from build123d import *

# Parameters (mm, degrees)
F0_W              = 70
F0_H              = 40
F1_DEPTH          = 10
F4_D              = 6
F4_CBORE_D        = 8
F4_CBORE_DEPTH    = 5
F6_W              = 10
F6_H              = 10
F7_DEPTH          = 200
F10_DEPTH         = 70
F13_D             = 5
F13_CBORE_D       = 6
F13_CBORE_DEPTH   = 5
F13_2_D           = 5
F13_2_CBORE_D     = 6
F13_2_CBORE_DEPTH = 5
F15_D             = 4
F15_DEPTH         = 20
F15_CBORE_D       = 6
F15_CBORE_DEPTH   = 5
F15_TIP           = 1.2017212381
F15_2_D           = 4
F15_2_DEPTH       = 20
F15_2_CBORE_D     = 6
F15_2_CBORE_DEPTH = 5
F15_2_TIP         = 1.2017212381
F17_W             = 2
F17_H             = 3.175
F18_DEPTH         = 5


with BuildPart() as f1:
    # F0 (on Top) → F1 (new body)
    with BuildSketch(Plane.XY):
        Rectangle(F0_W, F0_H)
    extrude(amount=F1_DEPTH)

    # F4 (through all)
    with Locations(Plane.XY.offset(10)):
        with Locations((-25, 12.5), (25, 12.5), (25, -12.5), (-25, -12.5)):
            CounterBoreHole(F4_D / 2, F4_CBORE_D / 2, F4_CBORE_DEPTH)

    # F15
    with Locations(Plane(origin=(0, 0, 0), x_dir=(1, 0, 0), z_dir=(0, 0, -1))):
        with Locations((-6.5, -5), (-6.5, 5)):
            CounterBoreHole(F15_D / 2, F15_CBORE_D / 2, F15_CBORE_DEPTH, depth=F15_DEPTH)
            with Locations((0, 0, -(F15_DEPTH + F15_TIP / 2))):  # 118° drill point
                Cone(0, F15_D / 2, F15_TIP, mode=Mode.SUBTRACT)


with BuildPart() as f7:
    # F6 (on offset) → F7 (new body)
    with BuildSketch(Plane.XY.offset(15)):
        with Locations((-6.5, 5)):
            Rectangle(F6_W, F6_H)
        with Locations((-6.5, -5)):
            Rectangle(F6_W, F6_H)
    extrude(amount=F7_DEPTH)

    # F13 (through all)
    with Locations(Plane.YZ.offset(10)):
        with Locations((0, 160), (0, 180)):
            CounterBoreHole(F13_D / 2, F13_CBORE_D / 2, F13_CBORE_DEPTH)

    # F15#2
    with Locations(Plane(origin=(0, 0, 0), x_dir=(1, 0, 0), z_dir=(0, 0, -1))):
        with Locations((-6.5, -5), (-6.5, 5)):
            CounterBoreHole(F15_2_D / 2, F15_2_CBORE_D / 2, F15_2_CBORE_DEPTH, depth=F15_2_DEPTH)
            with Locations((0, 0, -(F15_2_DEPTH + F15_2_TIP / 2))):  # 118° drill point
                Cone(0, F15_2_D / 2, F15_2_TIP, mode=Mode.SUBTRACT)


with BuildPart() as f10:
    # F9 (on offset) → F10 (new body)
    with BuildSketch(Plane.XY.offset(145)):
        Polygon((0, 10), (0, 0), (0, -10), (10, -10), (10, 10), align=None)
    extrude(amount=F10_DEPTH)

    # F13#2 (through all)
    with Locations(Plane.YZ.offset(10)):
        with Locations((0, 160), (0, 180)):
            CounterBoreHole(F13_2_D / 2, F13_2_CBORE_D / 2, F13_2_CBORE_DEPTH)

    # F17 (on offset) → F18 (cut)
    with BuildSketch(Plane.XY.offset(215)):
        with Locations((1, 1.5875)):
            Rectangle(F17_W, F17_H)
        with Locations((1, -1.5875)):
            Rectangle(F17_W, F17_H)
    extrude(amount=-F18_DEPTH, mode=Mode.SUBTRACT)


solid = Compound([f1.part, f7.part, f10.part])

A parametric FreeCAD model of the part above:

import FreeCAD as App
import Part
import Sketcher


def add_polygon(sketch, points):
    """Adds a closed chain of lines whose ends are joined by coincident constraints."""
    first, n = sketch.GeometryCount, len(points)
    for a, b in zip(points, points[1:] + points[:1]):
        sketch.addGeometry(Part.LineSegment(App.Vector(*a, 0), App.Vector(*b, 0)), False)
    for i in range(n):
        sketch.addConstraint(Sketcher.Constraint("Coincident", first + i, 2, first + (i + 1) % n, 1))

doc = App.newDocument("Part")
body = doc.addObject("PartDesign::Body", "Body")

# Sketch on XY plane
sketch1 = body.newObject("Sketcher::SketchObject", "Sketch")
sketch1.AttachmentSupport = (doc.getObject("XY_Plane"), [""])
sketch1.MapMode = "FlatFace"
add_polygon(sketch1, [(-35, 20), (-35, -20), (35, -20), (35, 20)])  # lines 0-3
sketch1.addConstraint(Sketcher.Constraint("Vertical", 0))
sketch1.addConstraint(Sketcher.Constraint("Horizontal", 1))
sketch1.addConstraint(Sketcher.Constraint("Vertical", 2))
sketch1.addConstraint(Sketcher.Constraint("Horizontal", 3))
sketch1.addConstraint(Sketcher.Constraint("Symmetric", 0, 2, 2, 2, -1, 1))
sketch1.addConstraint(Sketcher.Constraint("DistanceX", 1, 1, 1, 2, 70.0))
sketch1.addConstraint(Sketcher.Constraint("DistanceY", 0, 2, 0, 1, 40.0))
pad1 = body.newObject("PartDesign::Pad", "Pad")
pad1.Profile = sketch1
pad1.Length = 10

# Sketch on XY plane
sketch2 = body.newObject("Sketcher::SketchObject", "Sketch001")
sketch2.AttachmentSupport = (doc.getObject("XY_Plane"), [""])
sketch2.MapMode = "FlatFace"
sketch2.AttachmentOffset = App.Placement(App.Vector(0, 0, 10), App.Rotation())
sketch2.addGeometry(Part.Circle(App.Vector(-25, 12.5, 0), App.Vector(0, 0, 1), 3), False)
sketch2.addGeometry(Part.Circle(App.Vector(25, 12.5, 0), App.Vector(0, 0, 1), 3), False)
sketch2.addGeometry(Part.Circle(App.Vector(25, -12.5, 0), App.Vector(0, 0, 1), 3), False)
sketch2.addGeometry(Part.Circle(App.Vector(-25, -12.5, 0), App.Vector(0, 0, 1), 3), False)
sketch2.addConstraint(Sketcher.Constraint("Equal", 0, 1))
sketch2.addConstraint(Sketcher.Constraint("Equal", 1, 2))
sketch2.addConstraint(Sketcher.Constraint("Equal", 2, 3))
sketch2.addConstraint(Sketcher.Constraint("Symmetric", 0, 3, 2, 3, -1, 1))
sketch2.addConstraint(Sketcher.Constraint("Symmetric", 1, 3, 3, 3, -1, 1))
sketch2.addConstraint(Sketcher.Constraint("Symmetric", 0, 3, 1, 3, -2))
sketch2.addConstraint(Sketcher.Constraint("Diameter", 0, 6.0))
sketch2.addConstraint(Sketcher.Constraint("DistanceX", 0, 3, -1, 1, 25.0))
sketch2.addConstraint(Sketcher.Constraint("DistanceY", 2, 3, 1, 3, 25.0))
doc.recompute()
hole = body.newObject("PartDesign::Hole", "Hole")
hole.Profile = sketch2
hole.ThreadType = "None"
hole.Diameter = 6
hole.DepthType = "ThroughAll"
hole.HoleCutType = "Counterbore"
hole.HoleCutDiameter = 8
hole.HoleCutDepth = 5

# Sketch on XY plane
sketch3 = body.newObject("Sketcher::SketchObject", "Sketch002")
sketch3.AttachmentSupport = (doc.getObject("XY_Plane"), [""])
sketch3.MapMode = "FlatFace"
sketch3.addGeometry(Part.Circle(App.Vector(-6.5, 5, 0), App.Vector(0, 0, 1), 2), False)
sketch3.addGeometry(Part.Circle(App.Vector(-6.5, -5, 0), App.Vector(0, 0, 1), 2), False)
sketch3.addConstraint(Sketcher.Constraint("Equal", 0, 1))
sketch3.addConstraint(Sketcher.Constraint("Symmetric", 0, 3, 1, 3, -1))
sketch3.addConstraint(Sketcher.Constraint("Diameter", 0, 4.0))
sketch3.addConstraint(Sketcher.Constraint("DistanceY", -1, 1, 0, 3, 5.0))
sketch3.addConstraint(Sketcher.Constraint("DistanceX", 0, 3, -1, 1, 6.5))
doc.recompute()
hole2 = body.newObject("PartDesign::Hole", "Hole001")
hole2.Profile = sketch3
hole2.ThreadType = "None"
hole2.Diameter = 4
hole2.DepthType = "Dimension"
hole2.Depth = 20
hole2.DrillPoint = "Angled"
hole2.DrillPointAngle = 118
hole2.HoleCutType = "Counterbore"
hole2.HoleCutDiameter = 6
hole2.HoleCutDepth = 5
hole2.Reversed = True
body2 = doc.addObject("PartDesign::Body", "Body001")

# Sketch on XY plane
sketch4 = body2.newObject("Sketcher::SketchObject", "Sketch003")
sketch4.AttachmentSupport = (doc.getObject("XY_Plane001"), [""])
sketch4.MapMode = "FlatFace"
sketch4.AttachmentOffset = App.Placement(App.Vector(0, 0, 15), App.Rotation())
add_polygon(sketch4, [(-12, 10), (-12, -10), (-2, -10), (-2, 10)])  # lines 0-3
sketch4.addConstraint(Sketcher.Constraint("Vertical", 0))
sketch4.addConstraint(Sketcher.Constraint("Horizontal", 1))
sketch4.addConstraint(Sketcher.Constraint("Vertical", 2))
sketch4.addConstraint(Sketcher.Constraint("Horizontal", 3))
sketch4.addConstraint(Sketcher.Constraint("DistanceX", 1, 1, 1, 2, 10.0))
sketch4.addConstraint(Sketcher.Constraint("DistanceY", 0, 2, 0, 1, 20.0))
sketch4.addConstraint(Sketcher.Constraint("DistanceY", 0, 2, -1, 1, 10.0))
sketch4.addConstraint(Sketcher.Constraint("DistanceX", 0, 2, -1, 1, 11.5))
pad2 = body2.newObject("PartDesign::Pad", "Pad001")
pad2.Profile = sketch4
pad2.Length = 200

# Sketch on YZ plane
sketch5 = body2.newObject("Sketcher::SketchObject", "Sketch004")
sketch5.AttachmentSupport = (doc.getObject("YZ_Plane001"), [""])
sketch5.MapMode = "FlatFace"
sketch5.AttachmentOffset = App.Placement(App.Vector(0, 0, 10), App.Rotation())
sketch5.addGeometry(Part.Circle(App.Vector(0, 160, 0), App.Vector(0, 0, 1), 2.5), False)
sketch5.addGeometry(Part.Circle(App.Vector(0, 180, 0), App.Vector(0, 0, 1), 2.5), False)
sketch5.addConstraint(Sketcher.Constraint("Equal", 0, 1))
sketch5.addConstraint(Sketcher.Constraint("PointOnObject", 0, 3, -2))
sketch5.addConstraint(Sketcher.Constraint("PointOnObject", 1, 3, -2))
sketch5.addConstraint(Sketcher.Constraint("Diameter", 0, 5.0))
sketch5.addConstraint(Sketcher.Constraint("DistanceY", -1, 1, 0, 3, 160.0))
sketch5.addConstraint(Sketcher.Constraint("DistanceY", -1, 1, 1, 3, 180.0))
doc.recompute()
hole3 = body2.newObject("PartDesign::Hole", "Hole002")
hole3.Profile = sketch5
hole3.ThreadType = "None"
hole3.Diameter = 5
hole3.DepthType = "ThroughAll"
hole3.HoleCutType = "Counterbore"
hole3.HoleCutDiameter = 6
hole3.HoleCutDepth = 5

# Sketch on XY plane
sketch6 = body2.newObject("Sketcher::SketchObject", "Sketch005")
sketch6.AttachmentSupport = (doc.getObject("XY_Plane001"), [""])
sketch6.MapMode = "FlatFace"
sketch6.addGeometry(Part.Circle(App.Vector(-6.5, 5, 0), App.Vector(0, 0, 1), 2), False)
sketch6.addGeometry(Part.Circle(App.Vector(-6.5, -5, 0), App.Vector(0, 0, 1), 2), False)
sketch6.addConstraint(Sketcher.Constraint("Equal", 0, 1))
sketch6.addConstraint(Sketcher.Constraint("Symmetric", 0, 3, 1, 3, -1))
sketch6.addConstraint(Sketcher.Constraint("Diameter", 0, 4.0))
sketch6.addConstraint(Sketcher.Constraint("DistanceY", -1, 1, 0, 3, 5.0))
sketch6.addConstraint(Sketcher.Constraint("DistanceX", 0, 3, -1, 1, 6.5))
doc.recompute()
hole4 = body2.newObject("PartDesign::Hole", "Hole003")
hole4.Profile = sketch6
hole4.ThreadType = "None"
hole4.Diameter = 4
hole4.DepthType = "Dimension"
hole4.Depth = 20
hole4.DrillPoint = "Angled"
hole4.DrillPointAngle = 118
hole4.HoleCutType = "Counterbore"
hole4.HoleCutDiameter = 6
hole4.HoleCutDepth = 5
hole4.Reversed = True
body3 = doc.addObject("PartDesign::Body", "Body002")

# Sketch on XY plane
sketch7 = body3.newObject("Sketcher::SketchObject", "Sketch006")
sketch7.AttachmentSupport = (doc.getObject("XY_Plane002"), [""])
sketch7.MapMode = "FlatFace"
sketch7.AttachmentOffset = App.Placement(App.Vector(0, 0, 145), App.Rotation())
add_polygon(sketch7, [(0, 10), (0, -10), (10, -10), (10, 10)])  # lines 0-3
sketch7.addConstraint(Sketcher.Constraint("Vertical", 0))
sketch7.addConstraint(Sketcher.Constraint("Horizontal", 1))
sketch7.addConstraint(Sketcher.Constraint("Vertical", 2))
sketch7.addConstraint(Sketcher.Constraint("Horizontal", 3))
sketch7.addConstraint(Sketcher.Constraint("Symmetric", 0, 2, 3, 2, -1, 1))
sketch7.addConstraint(Sketcher.Constraint("DistanceX", 1, 1, 1, 2, 10.0))
sketch7.addConstraint(Sketcher.Constraint("DistanceY", 0, 2, 0, 1, 20.0))
pad3 = body3.newObject("PartDesign::Pad", "Pad002")
pad3.Profile = sketch7
pad3.Length = 70

# Sketch on YZ plane
sketch8 = body3.newObject("Sketcher::SketchObject", "Sketch007")
sketch8.AttachmentSupport = (doc.getObject("YZ_Plane002"), [""])
sketch8.MapMode = "FlatFace"
sketch8.AttachmentOffset = App.Placement(App.Vector(0, 0, 10), App.Rotation())
sketch8.addGeometry(Part.Circle(App.Vector(0, 160, 0), App.Vector(0, 0, 1), 2.5), False)
sketch8.addGeometry(Part.Circle(App.Vector(0, 180, 0), App.Vector(0, 0, 1), 2.5), False)
sketch8.addConstraint(Sketcher.Constraint("Equal", 0, 1))
sketch8.addConstraint(Sketcher.Constraint("PointOnObject", 0, 3, -2))
sketch8.addConstraint(Sketcher.Constraint("PointOnObject", 1, 3, -2))
sketch8.addConstraint(Sketcher.Constraint("Diameter", 0, 5.0))
sketch8.addConstraint(Sketcher.Constraint("DistanceY", -1, 1, 0, 3, 160.0))
sketch8.addConstraint(Sketcher.Constraint("DistanceY", -1, 1, 1, 3, 180.0))
doc.recompute()
hole5 = body3.newObject("PartDesign::Hole", "Hole004")
hole5.Profile = sketch8
hole5.ThreadType = "None"
hole5.Diameter = 5
hole5.DepthType = "ThroughAll"
hole5.HoleCutType = "Counterbore"
hole5.HoleCutDiameter = 6
hole5.HoleCutDepth = 5

# Sketch on XY plane
sketch9 = body3.newObject("Sketcher::SketchObject", "Sketch008")
sketch9.AttachmentSupport = (doc.getObject("XY_Plane002"), [""])
sketch9.MapMode = "FlatFace"
sketch9.AttachmentOffset = App.Placement(App.Vector(0, 0, 215), App.Rotation())
add_polygon(sketch9, [(0, 3.2), (0, -3.2), (2, -3.2), (2, 3.2)])  # lines 0-3
sketch9.addConstraint(Sketcher.Constraint("Vertical", 0))
sketch9.addConstraint(Sketcher.Constraint("Horizontal", 1))
sketch9.addConstraint(Sketcher.Constraint("Vertical", 2))
sketch9.addConstraint(Sketcher.Constraint("Horizontal", 3))
sketch9.addConstraint(Sketcher.Constraint("Symmetric", 0, 2, 3, 2, -1, 1))
sketch9.addConstraint(Sketcher.Constraint("DistanceX", 1, 1, 1, 2, 2.0))
sketch9.addConstraint(Sketcher.Constraint("DistanceY", 0, 2, 0, 1, 6.35))
pocket1 = body3.newObject("PartDesign::Pocket", "Pocket")
pocket1.Profile = sketch9
pocket1.Length = 5

doc.recompute()
